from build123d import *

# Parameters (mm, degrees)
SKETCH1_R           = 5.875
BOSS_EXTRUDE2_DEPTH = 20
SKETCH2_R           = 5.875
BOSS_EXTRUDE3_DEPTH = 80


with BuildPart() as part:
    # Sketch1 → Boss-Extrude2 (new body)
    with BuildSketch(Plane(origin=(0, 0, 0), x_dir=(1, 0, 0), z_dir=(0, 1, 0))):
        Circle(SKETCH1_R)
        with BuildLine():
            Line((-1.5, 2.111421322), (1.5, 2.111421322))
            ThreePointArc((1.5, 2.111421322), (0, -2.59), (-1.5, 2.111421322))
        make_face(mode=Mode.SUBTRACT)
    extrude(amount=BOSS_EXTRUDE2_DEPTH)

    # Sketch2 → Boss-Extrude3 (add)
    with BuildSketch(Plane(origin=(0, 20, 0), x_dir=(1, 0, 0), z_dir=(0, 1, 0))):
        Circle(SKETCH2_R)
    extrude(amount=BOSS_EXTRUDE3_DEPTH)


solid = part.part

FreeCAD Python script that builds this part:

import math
import FreeCAD as App
import Part
import Sketcher

V = App.Vector
Q = App.Units.Quantity

doc = App.newDocument("Part")
body = doc.addObject("PartDesign::Body", "Body")

# Sketch on XZ plane
sketch1 = body.newObject("Sketcher::SketchObject", "Sketch")
sketch1.AttachmentSupport = (doc.getObject("XZ_Plane"), [""])
sketch1.MapMode = "FlatFace"
sketch1.addGeometry([
    Part.Circle(V(0, 0, 0), V(0, 0, 1), 5.9),
    Part.ArcOfCircle(Part.Circle(V(0, 0, 0), V(0, 0, 1), 2.6), math.radians(-55), math.radians(235)),
    Part.LineSegment(V(-1.5, -2.1, 0), V(1.5, -2.1, 0)),
], False)
sketch1.addConstraint([
    Sketcher.Constraint("Coincident", 1, 1, 2, 2),
    Sketcher.Constraint("Coincident", 2, 1, 1, 2),
    Sketcher.Constraint("Horizontal", 2),
    Sketcher.Constraint("Coincident", 0, 3, -1, 1),
    Sketcher.Constraint("Coincident", 1, 3, -1, 1),
    Sketcher.Constraint("Diameter", 0, Q("11.75 mm")),
    Sketcher.Constraint("DistanceX", 2, 1, 2, 2, Q("3 mm")),
    Sketcher.Constraint("Radius", 1, Q("2.59 mm")),
])
pad1 = body.newObject("PartDesign::Pad", "Pad")
pad1.Profile = sketch1
pad1.Length = 20
pad1.Reversed = True

# Sketch on XZ plane
sketch2 = body.newObject("Sketcher::SketchObject", "Sketch001")
sketch2.AttachmentSupport = (doc.getObject("XZ_Plane"), [""])
sketch2.MapMode = "FlatFace"
sketch2.AttachmentOffset = App.Placement(V(0, 0, -20), App.Rotation())
sketch2.addGeometry(Part.Circle(V(0, 0, 0), V(0, 0, 1), 6), False)
sketch2.addConstraint([
    Sketcher.Constraint("Coincident", 0, 3, -1, 1),
    Sketcher.Constraint("Diameter", 0, Q("11.75 mm")),
])
pad2 = body.newObject("PartDesign::Pad", "Pad001")
pad2.Profile = sketch2
pad2.Length = 80
pad2.Reversed = True

doc.recompute()
